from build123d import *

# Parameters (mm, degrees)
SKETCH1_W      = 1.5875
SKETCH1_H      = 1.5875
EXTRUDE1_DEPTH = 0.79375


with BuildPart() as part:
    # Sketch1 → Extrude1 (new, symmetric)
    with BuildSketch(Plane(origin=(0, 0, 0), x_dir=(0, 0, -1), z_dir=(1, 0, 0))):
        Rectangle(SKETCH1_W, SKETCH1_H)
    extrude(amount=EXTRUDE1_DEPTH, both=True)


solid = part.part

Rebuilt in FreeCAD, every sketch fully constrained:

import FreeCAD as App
import Part
import Sketcher
from FreeCAD import Vector
Q = App.Units.Quantity

doc = App.newDocument("Part")
body = doc.addObject("PartDesign::Body", "Body")

sketch1 = body.newObject("Sketcher::SketchObject", "Sketch")
sketch1.AttachmentSupport = (doc.getObject("YZ_Plane"), [""])
sketch1.MapMode = "FlatFace"
sketch1.addGeometry(Part.LineSegment(Vector(0.79375, 0.79375, 0), Vector(-0.79375, 0.79375, 0)), False)
sketch1.addGeometry(Part.LineSegment(Vector(-0.79375, 0.79375, 0), Vector(-0.79375, -0.79375, 0)), False)
sketch1.addGeometry(Part.LineSegment(Vector(-0.79375, -0.79375, 0), Vector(0.79375, -0.79375, 0)), False)
sketch1.addGeometry(Part.LineSegment(Vector(0.79375, -0.79375, 0), Vector(0.79375, 0.79375, 0)), False)
sketch1.addConstraint(Sketcher.Constraint("Coincident", 0, 2, 1, 1))
sketch1.addConstraint(Sketcher.Constraint("Coincident", 1, 2, 2, 1))
sketch1.addConstraint(Sketcher.Constraint("Coincident", 2, 2, 3, 1))
sketch1.addConstraint(Sketcher.Constraint("Coincident", 3, 2, 0, 1))
sketch1.addConstraint(Sketcher.Constraint("Horizontal", 0))
sketch1.addConstraint(Sketcher.Constraint("Vertical", 1))
sketch1.addConstraint(Sketcher.Constraint("Horizontal", 2))
sketch1.addConstraint(Sketcher.Constraint("Vertical", 3))
sketch1.addConstraint(Sketcher.Constraint("Symmetric", 0, 2, 2, 2, -1, 1))
sketch1.addConstraint(Sketcher.Constraint("Equal", 2, 1))
sketch1.addConstraint(Sketcher.Constraint("DistanceX", 0, 2, 0, 1, Q("0.0625 in")))
pad1 = body.newObject("PartDesign::Pad", "Pad")
pad1.Profile = sketch1
pad1.Length = Q("0.0625 in")
pad1.Midplane = True

doc.recompute()
